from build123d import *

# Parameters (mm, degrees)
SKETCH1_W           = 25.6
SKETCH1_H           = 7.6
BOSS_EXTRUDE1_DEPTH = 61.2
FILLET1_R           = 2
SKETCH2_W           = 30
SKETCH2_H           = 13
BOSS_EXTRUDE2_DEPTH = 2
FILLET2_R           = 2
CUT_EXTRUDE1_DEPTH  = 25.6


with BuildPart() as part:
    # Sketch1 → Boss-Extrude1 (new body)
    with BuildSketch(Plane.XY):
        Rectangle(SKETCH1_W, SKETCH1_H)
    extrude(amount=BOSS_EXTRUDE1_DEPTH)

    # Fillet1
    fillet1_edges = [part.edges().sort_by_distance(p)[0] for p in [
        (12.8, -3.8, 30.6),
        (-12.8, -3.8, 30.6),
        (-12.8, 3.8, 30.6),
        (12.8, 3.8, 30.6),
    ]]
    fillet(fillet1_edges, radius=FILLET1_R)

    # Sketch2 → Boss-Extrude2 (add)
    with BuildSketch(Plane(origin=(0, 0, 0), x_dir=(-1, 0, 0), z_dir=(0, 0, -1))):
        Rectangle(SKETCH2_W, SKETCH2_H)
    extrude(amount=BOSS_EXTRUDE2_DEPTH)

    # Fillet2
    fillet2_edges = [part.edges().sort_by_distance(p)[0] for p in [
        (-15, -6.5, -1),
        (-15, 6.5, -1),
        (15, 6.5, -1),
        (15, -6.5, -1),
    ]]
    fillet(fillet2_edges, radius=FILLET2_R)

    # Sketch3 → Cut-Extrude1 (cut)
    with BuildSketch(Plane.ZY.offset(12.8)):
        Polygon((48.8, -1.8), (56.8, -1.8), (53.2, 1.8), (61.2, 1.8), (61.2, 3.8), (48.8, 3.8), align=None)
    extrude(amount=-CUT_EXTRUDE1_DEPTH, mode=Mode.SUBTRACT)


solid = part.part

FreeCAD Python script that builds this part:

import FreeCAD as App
import Part
import Sketcher
from FreeCAD import Vector
Q = App.Units.Quantity


def edges_at(feature, points):
    """Names of the edges that pass closest to the given points."""
    edges = feature.Shape.Edges
    near = lambda p: min(range(len(edges)), key=lambda i: edges[i].distToShape(Part.Vertex(*p))[0])
    return sorted({f"Edge{near(p) + 1}" for p in points})


def add_polygon(sketch, points):
    """Adds a closed chain of lines whose ends are joined by coincident constraints."""
    first, n = sketch.GeometryCount, len(points)
    for a, b in zip(points, points[1:] + points[:1]):
        sketch.addGeometry(Part.LineSegment(App.Vector(*a, 0), App.Vector(*b, 0)), False)
    for i in range(n):
        sketch.addConstraint(Sketcher.Constraint("Coincident", first + i, 2, first + (i + 1) % n, 1))

doc = App.newDocument("Part")
params = doc.addObject("Spreadsheet::Sheet", "Params")
for row, (alias, value) in enumerate([
    ("sketch1_width", "25.6 mm"),
    ("sketch1_height", "7.6 mm"),
    ("pad1_length", "61.2 mm"),
    ("fillet_radius", "2 mm"),
    ("sketch2_width", "30 mm"),
    ("sketch2_height", "13 mm"),
    ("pad2_length", "2 mm"),
    ("fillet2_radius", "2 mm"),
    ("sketch3_width", "2 mm"),
    ("sketch3_height", "8 mm"),
    ("sketch3_width2", "5.6 mm"),
    ("pocket1_length", "25.6 mm"),
], start=1):
    params.set(f"A{row}", alias)
    params.set(f"B{row}", "=" + value)
    params.setAlias(f"B{row}", alias)

body = doc.addObject("PartDesign::Body", "Body")

# Sketch on XY plane
sketch1 = body.newObject("Sketcher::SketchObject", "Sketch")
sketch1.AttachmentSupport = (doc.getObject("XY_Plane"), [""])
sketch1.MapMode = "FlatFace"
add_polygon(sketch1, [(-13, 4), (-13, -4), (13, -4), (13, 4)])  # lines 0-3
sketch1.addConstraint(Sketcher.Constraint("Vertical", 0))
sketch1.addConstraint(Sketcher.Constraint("Horizontal", 1))
sketch1.addConstraint(Sketcher.Constraint("Vertical", 2))
sketch1.addConstraint(Sketcher.Constraint("Horizontal", 3))
sketch1.addConstraint(Sketcher.Constraint("Symmetric", 0, 2, 2, 2, -1, 1))
sketch1.addConstraint(Sketcher.Constraint("DistanceX", 1, 1, 1, 2, Q("25.6 mm")))
sketch1.addConstraint(Sketcher.Constraint("DistanceY", 0, 2, 0, 1, Q("7.6 mm")))
sketch1.setExpression("Constraints[9]", "Params.sketch1_width")
sketch1.setExpression("Constraints[10]", "Params.sketch1_height")
pad1 = body.newObject("PartDesign::Pad", "Pad")
pad1.Profile = sketch1
pad1.setExpression("Length", "Params.pad1_length")
doc.recompute()

fillet = body.newObject("PartDesign::Fillet", "Fillet")
fillet.Base = (pad1, edges_at(pad1, [
    (12.8, -3.8, 30.6),
    (-12.8, -3.8, 30.6),
    (-12.8, 3.8, 30.6),
    (12.8, 3.8, 30.6),
]))
fillet.setExpression("Radius", "Params.fillet_radius")

# Sketch on XY plane
sketch2 = body.newObject("Sketcher::SketchObject", "Sketch001")
sketch2.AttachmentSupport = (doc.getObject("XY_Plane"), [""])
sketch2.MapMode = "FlatFace"
add_polygon(sketch2, [(15, 6), (15, -6), (-15, -6), (-15, 6)])  # lines 0-3
sketch2.addConstraint(Sketcher.Constraint("Vertical", 0))
sketch2.addConstraint(Sketcher.Constraint("Horizontal", 1))
sketch2.addConstraint(Sketcher.Constraint("Vertical", 2))
sketch2.addConstraint(Sketcher.Constraint("Horizontal", 3))
sketch2.addConstraint(Sketcher.Constraint("Symmetric", 0, 2, 2, 2, -1, 1))
sketch2.addConstraint(Sketcher.Constraint("DistanceX", 1, 2, 1, 1, Q("30 mm")))
sketch2.addConstraint(Sketcher.Constraint("DistanceY", 0, 2, 0, 1, Q("13 mm")))
sketch2.setExpression("Constraints[9]", "Params.sketch2_width")
sketch2.setExpression("Constraints[10]", "Params.sketch2_height")
pad2 = body.newObject("PartDesign::Pad", "Pad001")
pad2.Profile = sketch2
pad2.setExpression("Length", "Params.pad2_length")
pad2.Reversed = True
doc.recompute()

fillet2 = body.newObject("PartDesign::Fillet", "Fillet001")
fillet2.Base = (pad2, edges_at(pad2, [
    (-15, -6.5, -1),
    (-15, 6.5, -1),
    (15, 6.5, -1),
    (15, -6.5, -1),
]))
fillet2.setExpression("Radius", "Params.fillet2_radius")

# Sketch on YZ plane
sketch3 = body.newObject("Sketcher::SketchObject", "Sketch002")
sketch3.AttachmentSupport = (doc.getObject("YZ_Plane"), [""])
sketch3.MapMode = "FlatFace"
sketch3.AttachmentOffset = App.Placement(Vector(0, 0, -12.8), App.Rotation())
add_polygon(sketch3, [(-1.8, 48.8), (-1.8, 56.8), (1.8, 53.2), (1.8, 61.2), (3.8, 61.2), (3.8, 48.8)])  # lines 0-5
sketch3.addConstraint(Sketcher.Constraint("Vertical", 0))
sketch3.addConstraint(Sketcher.Constraint("Vertical", 2))
sketch3.addConstraint(Sketcher.Constraint("Horizontal", 3))
sketch3.addConstraint(Sketcher.Constraint("Vertical", 4))
sketch3.addConstraint(Sketcher.Constraint("Horizontal", 5))
sketch3.addConstraint(Sketcher.Constraint("Equal", 0, 2))
sketch3.addConstraint(Sketcher.Constraint("DistanceX", 3, 1, 3, 2, Q("2 mm")))
sketch3.addConstraint(Sketcher.Constraint("DistanceY", 0, 1, 0, 2, Q("8 mm")))
sketch3.addConstraint(Sketcher.Constraint("Angle", 1, Q("-45 deg")))
sketch3.addConstraint(Sketcher.Constraint("DistanceX", 5, 2, 5, 1, Q("5.6 mm")))
sketch3.addConstraint(Sketcher.Constraint("DistanceX", 0, 2, -1, 1, Q("1.8 mm")))
sketch3.addConstraint(Sketcher.Constraint("DistanceY", -1, 1, 0, 2, Q("56.8 mm")))
sketch3.setExpression("Constraints[12]", "Params.sketch3_width")
sketch3.setExpression("Constraints[13]", "Params.sketch3_height")
sketch3.setExpression("Constraints[15]", "Params.sketch3_width2")
pocket1 = body.newObject("PartDesign::Pocket", "Pocket")
pocket1.Profile = sketch3
pocket1.setExpression("Length", "Params.pocket1_length")
pocket1.Reversed = True

doc.recompute()
